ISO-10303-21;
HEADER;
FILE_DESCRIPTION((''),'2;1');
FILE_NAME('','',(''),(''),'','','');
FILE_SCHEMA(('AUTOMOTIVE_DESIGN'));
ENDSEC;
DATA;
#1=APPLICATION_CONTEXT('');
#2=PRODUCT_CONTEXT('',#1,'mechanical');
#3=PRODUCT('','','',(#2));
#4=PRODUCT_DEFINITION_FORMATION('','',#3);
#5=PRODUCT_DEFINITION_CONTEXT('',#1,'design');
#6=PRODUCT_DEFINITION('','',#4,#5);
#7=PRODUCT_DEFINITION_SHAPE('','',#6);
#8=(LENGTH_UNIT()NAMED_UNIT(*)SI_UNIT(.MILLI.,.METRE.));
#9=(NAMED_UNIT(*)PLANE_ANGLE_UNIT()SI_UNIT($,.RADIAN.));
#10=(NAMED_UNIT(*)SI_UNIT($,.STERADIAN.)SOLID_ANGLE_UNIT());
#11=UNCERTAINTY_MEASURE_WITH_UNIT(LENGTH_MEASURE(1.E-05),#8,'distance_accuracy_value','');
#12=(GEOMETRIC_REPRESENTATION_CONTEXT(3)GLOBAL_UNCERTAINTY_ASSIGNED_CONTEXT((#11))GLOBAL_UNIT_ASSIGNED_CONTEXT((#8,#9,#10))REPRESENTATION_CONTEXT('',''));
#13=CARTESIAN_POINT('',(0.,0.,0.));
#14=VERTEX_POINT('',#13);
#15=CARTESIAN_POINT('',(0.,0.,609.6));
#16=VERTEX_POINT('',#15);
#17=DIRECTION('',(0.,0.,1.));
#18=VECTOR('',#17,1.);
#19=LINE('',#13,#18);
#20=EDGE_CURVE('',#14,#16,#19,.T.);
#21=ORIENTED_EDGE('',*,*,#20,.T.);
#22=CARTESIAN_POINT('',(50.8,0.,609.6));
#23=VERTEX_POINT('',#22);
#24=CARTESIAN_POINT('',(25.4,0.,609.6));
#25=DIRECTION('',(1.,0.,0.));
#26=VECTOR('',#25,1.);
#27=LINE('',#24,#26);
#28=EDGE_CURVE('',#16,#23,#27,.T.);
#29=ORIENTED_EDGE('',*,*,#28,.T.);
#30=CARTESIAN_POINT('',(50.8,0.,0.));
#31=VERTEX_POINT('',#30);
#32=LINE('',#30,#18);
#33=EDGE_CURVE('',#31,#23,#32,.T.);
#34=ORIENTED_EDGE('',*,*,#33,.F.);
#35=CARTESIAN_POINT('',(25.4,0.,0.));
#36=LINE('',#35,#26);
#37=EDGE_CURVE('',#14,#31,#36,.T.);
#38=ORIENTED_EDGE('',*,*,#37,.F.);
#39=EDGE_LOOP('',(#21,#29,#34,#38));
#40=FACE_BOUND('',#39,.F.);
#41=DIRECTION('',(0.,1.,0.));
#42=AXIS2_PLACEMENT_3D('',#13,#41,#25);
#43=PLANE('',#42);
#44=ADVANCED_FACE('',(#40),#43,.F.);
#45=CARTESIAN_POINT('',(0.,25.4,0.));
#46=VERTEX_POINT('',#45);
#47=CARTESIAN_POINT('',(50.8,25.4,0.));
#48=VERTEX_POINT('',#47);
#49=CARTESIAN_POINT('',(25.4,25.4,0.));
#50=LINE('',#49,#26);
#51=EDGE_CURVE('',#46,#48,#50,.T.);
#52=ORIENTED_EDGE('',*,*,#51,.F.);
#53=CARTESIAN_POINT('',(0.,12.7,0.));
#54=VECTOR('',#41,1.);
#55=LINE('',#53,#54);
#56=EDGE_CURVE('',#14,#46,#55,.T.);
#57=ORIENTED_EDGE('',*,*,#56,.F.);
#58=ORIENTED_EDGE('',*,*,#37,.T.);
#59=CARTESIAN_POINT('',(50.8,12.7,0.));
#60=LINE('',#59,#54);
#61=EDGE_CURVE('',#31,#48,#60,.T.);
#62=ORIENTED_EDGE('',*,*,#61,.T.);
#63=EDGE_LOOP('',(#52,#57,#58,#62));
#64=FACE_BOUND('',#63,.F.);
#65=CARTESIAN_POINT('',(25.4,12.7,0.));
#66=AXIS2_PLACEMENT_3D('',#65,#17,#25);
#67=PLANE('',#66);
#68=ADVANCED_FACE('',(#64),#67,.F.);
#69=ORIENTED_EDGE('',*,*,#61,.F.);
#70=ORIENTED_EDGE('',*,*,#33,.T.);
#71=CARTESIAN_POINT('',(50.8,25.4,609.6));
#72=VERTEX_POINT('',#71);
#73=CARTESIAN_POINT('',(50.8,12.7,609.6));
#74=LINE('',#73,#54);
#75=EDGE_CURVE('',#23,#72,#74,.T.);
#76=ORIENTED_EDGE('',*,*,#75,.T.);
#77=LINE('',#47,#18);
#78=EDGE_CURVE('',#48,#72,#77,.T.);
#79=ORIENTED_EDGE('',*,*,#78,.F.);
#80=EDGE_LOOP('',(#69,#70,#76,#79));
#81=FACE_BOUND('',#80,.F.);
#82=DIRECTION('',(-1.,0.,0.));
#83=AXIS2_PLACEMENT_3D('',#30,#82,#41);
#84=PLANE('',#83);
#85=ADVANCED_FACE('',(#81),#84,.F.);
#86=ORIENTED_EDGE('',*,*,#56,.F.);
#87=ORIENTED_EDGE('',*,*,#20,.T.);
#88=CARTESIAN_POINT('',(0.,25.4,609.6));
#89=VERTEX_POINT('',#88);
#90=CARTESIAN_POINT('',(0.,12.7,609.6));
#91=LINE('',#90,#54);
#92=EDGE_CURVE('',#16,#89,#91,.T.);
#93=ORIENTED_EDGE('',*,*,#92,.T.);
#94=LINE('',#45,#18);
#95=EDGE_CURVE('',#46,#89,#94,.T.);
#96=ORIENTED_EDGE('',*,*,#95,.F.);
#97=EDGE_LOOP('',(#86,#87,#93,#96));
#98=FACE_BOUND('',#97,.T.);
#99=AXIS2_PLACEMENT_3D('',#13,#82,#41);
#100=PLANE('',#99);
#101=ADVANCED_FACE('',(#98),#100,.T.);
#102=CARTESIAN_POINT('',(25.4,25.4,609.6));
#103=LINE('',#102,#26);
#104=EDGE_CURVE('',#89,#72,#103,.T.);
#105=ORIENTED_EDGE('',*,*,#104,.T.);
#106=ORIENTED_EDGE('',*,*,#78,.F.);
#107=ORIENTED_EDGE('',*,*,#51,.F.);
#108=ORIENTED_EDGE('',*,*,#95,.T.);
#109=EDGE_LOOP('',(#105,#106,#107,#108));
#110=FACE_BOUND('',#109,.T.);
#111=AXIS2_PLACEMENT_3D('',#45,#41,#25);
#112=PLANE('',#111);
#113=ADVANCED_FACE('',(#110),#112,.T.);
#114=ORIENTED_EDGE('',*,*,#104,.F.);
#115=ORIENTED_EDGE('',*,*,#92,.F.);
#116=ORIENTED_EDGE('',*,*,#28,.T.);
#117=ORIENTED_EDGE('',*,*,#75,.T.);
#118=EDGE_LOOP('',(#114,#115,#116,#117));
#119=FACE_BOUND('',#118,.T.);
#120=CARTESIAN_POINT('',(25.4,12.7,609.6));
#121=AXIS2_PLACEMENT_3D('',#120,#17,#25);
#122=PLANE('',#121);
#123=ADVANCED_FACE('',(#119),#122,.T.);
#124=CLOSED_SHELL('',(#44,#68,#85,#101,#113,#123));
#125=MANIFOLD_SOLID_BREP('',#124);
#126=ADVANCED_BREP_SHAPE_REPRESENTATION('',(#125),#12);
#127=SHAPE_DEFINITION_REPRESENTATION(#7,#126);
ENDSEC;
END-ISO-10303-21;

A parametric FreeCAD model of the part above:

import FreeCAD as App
import Part
import Sketcher
from FreeCAD import Vector
Q = App.Units.Quantity

doc = App.newDocument("Part")
body = doc.addObject("PartDesign::Body", "Body")

sketch1 = doc.addObject("Sketcher::SketchObject", "Sketch")
body.addObject(sketch1)
sketch1.AttachmentSupport = (doc.XY_Plane, [""])
sketch1.MapMode = "FlatFace"
sketch1.addGeometry(Part.LineSegment(Vector(0, 25, 0), Vector(0, 0, 0)), False)
sketch1.addGeometry(Part.LineSegment(Vector(0, 0, 0), Vector(51, 0, 0)), False)
sketch1.addGeometry(Part.LineSegment(Vector(51, 0, 0), Vector(51, 25, 0)), False)
sketch1.addGeometry(Part.LineSegment(Vector(51, 25, 0), Vector(0, 25, 0)), False)
sketch1.addConstraint(Sketcher.Constraint("Coincident", 0, 2, 1, 1))
sketch1.addConstraint(Sketcher.Constraint("Coincident", 1, 2, 2, 1))
sketch1.addConstraint(Sketcher.Constraint("Coincident", 2, 2, 3, 1))
sketch1.addConstraint(Sketcher.Constraint("Coincident", 3, 2, 0, 1))
sketch1.addConstraint(Sketcher.Constraint("Vertical", 0))
sketch1.addConstraint(Sketcher.Constraint("Horizontal", 1))
sketch1.addConstraint(Sketcher.Constraint("Vertical", 2))
sketch1.addConstraint(Sketcher.Constraint("Horizontal", 3))
sketch1.addConstraint(Sketcher.Constraint("Coincident", 0, 2, -1, 1))
sketch1.addConstraint(Sketcher.Constraint("DistanceX", 1, 1, 1, 2, Q("2 in")))
sketch1.addConstraint(Sketcher.Constraint("DistanceY", 0, 2, 0, 1, Q("1 in")))
pad1 = doc.addObject("PartDesign::Pad", "Pad")
body.addObject(pad1)
pad1.Profile = sketch1
pad1.Length = Q("24 in")

doc.recompute()
